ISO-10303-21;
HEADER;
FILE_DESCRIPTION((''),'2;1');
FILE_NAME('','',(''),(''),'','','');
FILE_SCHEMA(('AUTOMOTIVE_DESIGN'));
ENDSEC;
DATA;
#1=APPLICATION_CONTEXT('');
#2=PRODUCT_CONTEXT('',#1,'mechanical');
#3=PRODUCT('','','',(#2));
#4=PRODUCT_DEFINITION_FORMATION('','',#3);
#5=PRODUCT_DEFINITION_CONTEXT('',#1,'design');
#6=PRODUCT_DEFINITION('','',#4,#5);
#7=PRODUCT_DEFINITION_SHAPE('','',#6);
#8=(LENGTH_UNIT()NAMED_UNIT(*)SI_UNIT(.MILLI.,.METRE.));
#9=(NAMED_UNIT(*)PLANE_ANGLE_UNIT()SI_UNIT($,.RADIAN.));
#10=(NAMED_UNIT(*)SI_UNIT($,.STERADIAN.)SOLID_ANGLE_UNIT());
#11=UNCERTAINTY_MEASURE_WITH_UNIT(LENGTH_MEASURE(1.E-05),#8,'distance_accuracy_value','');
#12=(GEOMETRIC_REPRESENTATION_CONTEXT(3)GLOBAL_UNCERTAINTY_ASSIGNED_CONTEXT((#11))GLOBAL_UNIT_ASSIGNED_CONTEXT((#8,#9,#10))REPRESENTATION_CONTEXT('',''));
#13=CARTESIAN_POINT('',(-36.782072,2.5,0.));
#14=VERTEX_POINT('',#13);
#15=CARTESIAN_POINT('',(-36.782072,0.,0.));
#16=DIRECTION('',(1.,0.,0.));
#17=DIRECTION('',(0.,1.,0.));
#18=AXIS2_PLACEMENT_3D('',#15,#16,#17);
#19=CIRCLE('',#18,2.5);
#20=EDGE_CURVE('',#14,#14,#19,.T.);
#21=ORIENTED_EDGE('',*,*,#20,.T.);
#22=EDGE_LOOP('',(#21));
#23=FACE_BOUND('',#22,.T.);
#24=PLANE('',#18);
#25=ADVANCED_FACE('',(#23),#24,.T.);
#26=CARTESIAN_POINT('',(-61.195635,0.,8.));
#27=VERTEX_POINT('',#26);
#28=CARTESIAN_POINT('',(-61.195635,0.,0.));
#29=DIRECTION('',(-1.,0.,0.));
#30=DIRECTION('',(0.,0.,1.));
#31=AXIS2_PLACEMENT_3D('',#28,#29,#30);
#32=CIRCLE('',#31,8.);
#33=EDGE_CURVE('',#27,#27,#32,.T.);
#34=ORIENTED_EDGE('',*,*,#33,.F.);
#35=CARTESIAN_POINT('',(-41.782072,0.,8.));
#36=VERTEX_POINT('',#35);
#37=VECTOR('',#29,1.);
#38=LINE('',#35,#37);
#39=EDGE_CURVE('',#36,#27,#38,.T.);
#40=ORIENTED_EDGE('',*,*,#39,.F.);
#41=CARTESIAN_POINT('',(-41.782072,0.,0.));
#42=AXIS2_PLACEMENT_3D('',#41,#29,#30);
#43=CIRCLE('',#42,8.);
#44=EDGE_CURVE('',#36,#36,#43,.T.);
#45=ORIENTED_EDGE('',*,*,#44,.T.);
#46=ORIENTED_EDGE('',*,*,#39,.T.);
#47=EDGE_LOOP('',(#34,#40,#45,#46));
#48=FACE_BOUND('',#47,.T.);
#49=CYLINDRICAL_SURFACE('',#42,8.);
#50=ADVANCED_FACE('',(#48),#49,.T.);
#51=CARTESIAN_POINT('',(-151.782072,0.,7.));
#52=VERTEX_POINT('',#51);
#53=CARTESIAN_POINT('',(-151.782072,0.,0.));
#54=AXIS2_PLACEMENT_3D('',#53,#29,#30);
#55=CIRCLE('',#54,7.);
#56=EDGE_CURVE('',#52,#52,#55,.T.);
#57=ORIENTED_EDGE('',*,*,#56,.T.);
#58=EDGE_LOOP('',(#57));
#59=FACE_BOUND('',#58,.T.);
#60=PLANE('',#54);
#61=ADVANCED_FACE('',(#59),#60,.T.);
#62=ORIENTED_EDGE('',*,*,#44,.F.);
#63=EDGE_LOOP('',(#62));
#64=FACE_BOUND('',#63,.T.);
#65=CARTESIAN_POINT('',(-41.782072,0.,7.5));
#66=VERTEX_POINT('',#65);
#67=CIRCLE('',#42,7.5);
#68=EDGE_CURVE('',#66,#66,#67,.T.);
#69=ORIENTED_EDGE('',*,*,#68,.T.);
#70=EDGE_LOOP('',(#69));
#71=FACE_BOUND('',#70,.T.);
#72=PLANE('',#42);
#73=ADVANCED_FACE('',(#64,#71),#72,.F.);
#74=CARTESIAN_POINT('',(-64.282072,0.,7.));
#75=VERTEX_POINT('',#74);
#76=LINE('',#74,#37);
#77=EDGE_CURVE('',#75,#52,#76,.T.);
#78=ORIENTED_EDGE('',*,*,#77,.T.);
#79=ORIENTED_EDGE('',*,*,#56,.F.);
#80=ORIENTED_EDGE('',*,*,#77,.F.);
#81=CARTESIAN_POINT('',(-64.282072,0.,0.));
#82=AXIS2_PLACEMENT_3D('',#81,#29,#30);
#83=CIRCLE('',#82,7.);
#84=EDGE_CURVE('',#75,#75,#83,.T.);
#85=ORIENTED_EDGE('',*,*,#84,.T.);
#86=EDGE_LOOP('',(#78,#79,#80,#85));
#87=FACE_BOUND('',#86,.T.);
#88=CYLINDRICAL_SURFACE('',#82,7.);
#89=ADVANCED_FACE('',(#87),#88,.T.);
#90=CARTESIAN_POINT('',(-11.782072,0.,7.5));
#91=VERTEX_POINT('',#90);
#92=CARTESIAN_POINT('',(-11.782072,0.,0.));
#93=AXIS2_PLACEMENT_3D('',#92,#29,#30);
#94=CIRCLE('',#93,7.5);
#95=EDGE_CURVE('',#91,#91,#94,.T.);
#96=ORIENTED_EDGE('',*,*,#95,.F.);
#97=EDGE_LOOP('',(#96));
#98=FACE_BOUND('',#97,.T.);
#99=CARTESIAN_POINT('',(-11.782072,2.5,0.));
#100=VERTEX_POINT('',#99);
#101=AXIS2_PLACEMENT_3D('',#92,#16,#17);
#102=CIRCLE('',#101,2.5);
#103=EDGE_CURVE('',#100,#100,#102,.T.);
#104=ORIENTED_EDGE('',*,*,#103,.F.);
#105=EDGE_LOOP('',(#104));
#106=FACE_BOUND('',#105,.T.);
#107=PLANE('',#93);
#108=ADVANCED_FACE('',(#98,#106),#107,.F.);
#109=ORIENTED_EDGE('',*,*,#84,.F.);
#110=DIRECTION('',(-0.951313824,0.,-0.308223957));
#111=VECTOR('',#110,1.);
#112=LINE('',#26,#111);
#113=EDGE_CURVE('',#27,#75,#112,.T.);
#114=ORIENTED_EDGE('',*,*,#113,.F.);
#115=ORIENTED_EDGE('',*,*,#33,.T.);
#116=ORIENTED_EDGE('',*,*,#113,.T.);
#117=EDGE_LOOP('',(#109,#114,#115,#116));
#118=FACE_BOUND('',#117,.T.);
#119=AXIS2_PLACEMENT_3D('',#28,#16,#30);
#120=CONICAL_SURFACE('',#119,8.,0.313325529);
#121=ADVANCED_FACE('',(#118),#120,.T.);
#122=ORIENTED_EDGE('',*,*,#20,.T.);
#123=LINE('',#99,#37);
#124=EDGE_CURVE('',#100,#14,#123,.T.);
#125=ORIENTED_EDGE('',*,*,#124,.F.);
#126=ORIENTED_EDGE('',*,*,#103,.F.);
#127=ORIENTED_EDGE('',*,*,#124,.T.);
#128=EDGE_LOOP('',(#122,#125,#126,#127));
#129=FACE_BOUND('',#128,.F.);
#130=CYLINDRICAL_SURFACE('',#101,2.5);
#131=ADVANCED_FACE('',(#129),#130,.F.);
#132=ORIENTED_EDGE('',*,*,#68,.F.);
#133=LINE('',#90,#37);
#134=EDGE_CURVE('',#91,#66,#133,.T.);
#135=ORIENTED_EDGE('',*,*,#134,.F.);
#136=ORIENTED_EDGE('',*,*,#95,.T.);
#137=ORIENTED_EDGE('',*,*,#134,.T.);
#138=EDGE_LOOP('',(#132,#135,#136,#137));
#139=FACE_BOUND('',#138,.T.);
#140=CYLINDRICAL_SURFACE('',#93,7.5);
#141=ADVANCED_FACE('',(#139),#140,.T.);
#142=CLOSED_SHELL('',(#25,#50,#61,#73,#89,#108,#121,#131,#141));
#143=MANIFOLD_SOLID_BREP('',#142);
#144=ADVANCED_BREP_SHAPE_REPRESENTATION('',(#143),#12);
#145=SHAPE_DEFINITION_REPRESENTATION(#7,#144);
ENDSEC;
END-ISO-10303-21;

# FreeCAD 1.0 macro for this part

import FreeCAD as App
import Part
import Sketcher
from FreeCAD import Vector

doc = App.newDocument("Part")
body = doc.addObject("PartDesign::Body", "Body")

# Sketch on XZ plane
sketch1 = doc.addObject("Sketcher::SketchObject", "Sketch")
body.addObject(sketch1)
sketch1.AttachmentSupport = (doc.XZ_Plane, [""])
sketch1.MapMode = "FlatFace"
sketch1.addGeometry([
    Part.LineSegment(Vector(-151.8, 0, 0), Vector(-11.8, 0, 0)),  # 0
    Part.LineSegment(Vector(-11.8, 0, 0), Vector(-11.8, 7.5, 0)),  # 1
    Part.LineSegment(Vector(-11.8, 7.5, 0), Vector(-41.8, 7.5, 0)),  # 2
    Part.LineSegment(Vector(-41.8, 7.5, 0), Vector(-41.8, 8, 0)),  # 3
    Part.LineSegment(Vector(-41.8, 8, 0), Vector(-61.2, 8, 0)),  # 4
    Part.LineSegment(Vector(-61.2, 8, 0), Vector(-64.3, 7, 0)),  # 5
    Part.LineSegment(Vector(-64.3, 7, 0), Vector(-151.8, 7, 0)),  # 6
    Part.LineSegment(Vector(-151.8, 7, 0), Vector(-151.8, 0, 0)),  # 7
], False)
sketch1.addConstraint([
    Sketcher.Constraint("Coincident", 0, 2, 1, 1),
    Sketcher.Constraint("Coincident", 1, 2, 2, 1),
    Sketcher.Constraint("Coincident", 2, 2, 3, 1),
    Sketcher.Constraint("Coincident", 3, 2, 4, 1),
    Sketcher.Constraint("Coincident", 4, 2, 5, 1),
    Sketcher.Constraint("Coincident", 5, 2, 6, 1),
    Sketcher.Constraint("Coincident", 6, 2, 7, 1),
    Sketcher.Constraint("Coincident", 7, 2, 0, 1),
    Sketcher.Constraint("Horizontal", 0),
    Sketcher.Constraint("Vertical", 1),
    Sketcher.Constraint("Horizontal", 2),
    Sketcher.Constraint("Vertical", 3),
    Sketcher.Constraint("Horizontal", 4),
    Sketcher.Constraint("Horizontal", 6),
    Sketcher.Constraint("Vertical", 7),
    Sketcher.Constraint("PointOnObject", 0, 2, -1),
    Sketcher.Constraint("DistanceX", 0, 1, 0, 2, 140.0),
    Sketcher.Constraint("DistanceX", 2, 2, 2, 1, 30.0),
    Sketcher.Constraint("DistanceY", 7, 2, 7, 1, 7.0),
    Sketcher.Constraint("DistanceX", 6, 2, 6, 1, 87.5),
    Sketcher.Constraint("DistanceY", 1, 1, 1, 2, 7.5),
    Sketcher.Constraint("DistanceY", 3, 1, 3, 2, 0.5),
    Sketcher.Constraint("DistanceX", 4, 2, 4, 1, 19.413563),
    Sketcher.Constraint("DistanceX", 5, 2, -1, 1, 64.282072),
])
revolution = doc.addObject("PartDesign::Revolution", "Revolution")
body.addObject(revolution)
revolution.Profile = sketch1
revolution.ReferenceAxis = (sketch1, ["H_Axis"])
revolution.Angle = 360

# Sketch on YZ plane
sketch2 = doc.addObject("Sketcher::SketchObject", "Sketch001")
body.addObject(sketch2)
sketch2.AttachmentSupport = (doc.YZ_Plane, [""])
sketch2.MapMode = "FlatFace"
sketch2.AttachmentOffset = App.Placement(Vector(0, 0, -11.782072), App.Rotation())
sketch2.addGeometry(Part.Circle(Vector(0, 0, 0), Vector(0, 0, 1), 2.5), False)
sketch2.addConstraint([
    Sketcher.Constraint("Coincident", 0, 3, -1, 1),
    Sketcher.Constraint("Diameter", 0, 5.0),
])
pocket1 = doc.addObject("PartDesign::Pocket", "Pocket")
body.addObject(pocket1)
pocket1.Profile = sketch2
pocket1.Length = 25

doc.recompute()
